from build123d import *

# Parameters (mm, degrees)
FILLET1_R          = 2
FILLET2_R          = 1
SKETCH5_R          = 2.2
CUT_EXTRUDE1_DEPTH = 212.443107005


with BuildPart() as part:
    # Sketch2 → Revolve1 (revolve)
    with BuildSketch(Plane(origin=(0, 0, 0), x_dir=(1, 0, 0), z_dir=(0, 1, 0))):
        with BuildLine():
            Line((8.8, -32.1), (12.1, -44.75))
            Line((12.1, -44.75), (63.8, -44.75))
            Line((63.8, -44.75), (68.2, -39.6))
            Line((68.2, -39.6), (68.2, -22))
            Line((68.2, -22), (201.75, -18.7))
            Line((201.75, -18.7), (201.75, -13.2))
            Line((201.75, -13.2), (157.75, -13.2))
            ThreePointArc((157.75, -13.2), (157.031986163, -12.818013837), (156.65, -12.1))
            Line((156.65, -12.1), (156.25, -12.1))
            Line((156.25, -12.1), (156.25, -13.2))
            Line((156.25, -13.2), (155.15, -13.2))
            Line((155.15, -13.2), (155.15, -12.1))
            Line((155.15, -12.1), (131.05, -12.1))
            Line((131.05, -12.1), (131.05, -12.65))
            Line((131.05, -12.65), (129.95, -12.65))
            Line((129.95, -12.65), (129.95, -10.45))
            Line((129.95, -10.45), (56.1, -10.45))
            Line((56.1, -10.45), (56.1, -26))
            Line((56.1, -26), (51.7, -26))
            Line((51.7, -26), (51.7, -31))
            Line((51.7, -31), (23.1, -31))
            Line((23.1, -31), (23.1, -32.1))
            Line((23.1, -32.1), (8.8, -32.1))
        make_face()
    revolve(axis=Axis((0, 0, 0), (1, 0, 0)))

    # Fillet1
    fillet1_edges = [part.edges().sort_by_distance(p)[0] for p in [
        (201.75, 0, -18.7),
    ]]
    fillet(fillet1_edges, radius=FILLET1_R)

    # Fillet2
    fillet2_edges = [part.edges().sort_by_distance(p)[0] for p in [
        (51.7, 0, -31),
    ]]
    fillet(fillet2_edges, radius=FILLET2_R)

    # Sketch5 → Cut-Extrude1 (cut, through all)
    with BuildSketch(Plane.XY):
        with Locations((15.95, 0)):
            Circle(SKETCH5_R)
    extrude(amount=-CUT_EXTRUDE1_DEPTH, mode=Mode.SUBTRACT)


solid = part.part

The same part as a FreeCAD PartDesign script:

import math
import FreeCAD as App
import Part
import Sketcher

V = App.Vector


def edges_at(feature, points):
    """Names of the edges that pass closest to the given points."""
    edges = feature.Shape.Edges
    near = lambda p: min(range(len(edges)), key=lambda i: edges[i].distToShape(Part.Vertex(*p))[0])
    return sorted({f"Edge{near(p) + 1}" for p in points})

doc = App.newDocument("Part")
body = doc.addObject("PartDesign::Body", "Body")

# Sketch on XZ plane
sketch1 = doc.addObject("Sketcher::SketchObject", "Sketch")
body.addObject(sketch1)
sketch1.AttachmentSupport = (doc.XZ_Plane, [""])
sketch1.MapMode = "FlatFace"
sketch1.addGeometry(Part.LineSegment(V(8.8, 32.1, 0), V(12.1, 44.75, 0)), False)
sketch1.addGeometry(Part.LineSegment(V(12.1, 44.75, 0), V(63.8, 44.75, 0)), False)
sketch1.addGeometry(Part.LineSegment(V(63.8, 44.75, 0), V(68.2, 39.6, 0)), False)
sketch1.addGeometry(Part.LineSegment(V(68.2, 39.6, 0), V(68.2, 22, 0)), False)
sketch1.addGeometry(Part.LineSegment(V(68.2, 22, 0), V(201.75, 18.7, 0)), False)
sketch1.addGeometry(Part.LineSegment(V(201.75, 18.7, 0), V(201.75, 13.2, 0)), False)
sketch1.addGeometry(Part.LineSegment(V(201.75, 13.2, 0), V(157.75, 13.2, 0)), False)
sketch1.addGeometry(Part.ArcOfCircle(Part.Circle(V(158.02, 11.83, 0), V(0, 0, 1), 1.39), math.radians(101), math.radians(169)), False)
sketch1.addGeometry(Part.LineSegment(V(156.65, 12.1, 0), V(156.25, 12.1, 0)), False)
sketch1.addGeometry(Part.LineSegment(V(156.25, 12.1, 0), V(156.25, 13.2, 0)), False)
sketch1.addGeometry(Part.LineSegment(V(156.25, 13.2, 0), V(155.15, 13.2, 0)), False)
sketch1.addGeometry(Part.LineSegment(V(155.15, 13.2, 0), V(155.15, 12.1, 0)), False)
sketch1.addGeometry(Part.LineSegment(V(155.15, 12.1, 0), V(131.05, 12.1, 0)), False)
sketch1.addGeometry(Part.LineSegment(V(131.05, 12.1, 0), V(131.05, 12.65, 0)), False)
sketch1.addGeometry(Part.LineSegment(V(131.05, 12.65, 0), V(129.95, 12.65, 0)), False)
sketch1.addGeometry(Part.LineSegment(V(129.95, 12.65, 0), V(129.95, 10.45, 0)), False)
sketch1.addGeometry(Part.LineSegment(V(129.95, 10.45, 0), V(56.1, 10.45, 0)), False)
sketch1.addGeometry(Part.LineSegment(V(56.1, 10.45, 0), V(56.1, 26, 0)), False)
sketch1.addGeometry(Part.LineSegment(V(56.1, 26, 0), V(51.7, 26, 0)), False)
sketch1.addGeometry(Part.LineSegment(V(51.7, 26, 0), V(51.7, 31, 0)), False)
sketch1.addGeometry(Part.LineSegment(V(51.7, 31, 0), V(23.1, 31, 0)), False)
sketch1.addGeometry(Part.LineSegment(V(23.1, 31, 0), V(23.1, 32.1, 0)), False)
sketch1.addGeometry(Part.LineSegment(V(23.1, 32.1, 0), V(8.8, 32.1, 0)), False)
sketch1.addConstraint(Sketcher.Constraint("Coincident", 0, 2, 1, 1))
sketch1.addConstraint(Sketcher.Constraint("Coincident", 1, 2, 2, 1))
sketch1.addConstraint(Sketcher.Constraint("Coincident", 2, 2, 3, 1))
sketch1.addConstraint(Sketcher.Constraint("Coincident", 3, 2, 4, 1))
sketch1.addConstraint(Sketcher.Constraint("Coincident", 4, 2, 5, 1))
sketch1.addConstraint(Sketcher.Constraint("Coincident", 5, 2, 6, 1))
sketch1.addConstraint(Sketcher.Constraint("Coincident", 6, 2, 7, 1))
sketch1.addConstraint(Sketcher.Constraint("Coincident", 7, 2, 8, 1))
sketch1.addConstraint(Sketcher.Constraint("Coincident", 8, 2, 9, 1))
sketch1.addConstraint(Sketcher.Constraint("Coincident", 9, 2, 10, 1))
sketch1.addConstraint(Sketcher.Constraint("Coincident", 10, 2, 11, 1))
sketch1.addConstraint(Sketcher.Constraint("Coincident", 11, 2, 12, 1))
sketch1.addConstraint(Sketcher.Constraint("Coincident", 12, 2, 13, 1))
sketch1.addConstraint(Sketcher.Constraint("Coincident", 13, 2, 14, 1))
sketch1.addConstraint(Sketcher.Constraint("Coincident", 14, 2, 15, 1))
sketch1.addConstraint(Sketcher.Constraint("Coincident", 15, 2, 16, 1))
sketch1.addConstraint(Sketcher.Constraint("Coincident", 16, 2, 17, 1))
sketch1.addConstraint(Sketcher.Constraint("Coincident", 17, 2, 18, 1))
sketch1.addConstraint(Sketcher.Constraint("Coincident", 18, 2, 19, 1))
sketch1.addConstraint(Sketcher.Constraint("Coincident", 19, 2, 20, 1))
sketch1.addConstraint(Sketcher.Constraint("Coincident", 20, 2, 21, 1))
sketch1.addConstraint(Sketcher.Constraint("Coincident", 21, 2, 22, 1))
sketch1.addConstraint(Sketcher.Constraint("Coincident", 22, 2, 0, 1))
sketch1.addConstraint(Sketcher.Constraint("Horizontal", 1))
sketch1.addConstraint(Sketcher.Constraint("Vertical", 3))
sketch1.addConstraint(Sketcher.Constraint("Vertical", 5))
sketch1.addConstraint(Sketcher.Constraint("Horizontal", 6))
sketch1.addConstraint(Sketcher.Constraint("Horizontal", 8))
sketch1.addConstraint(Sketcher.Constraint("Vertical", 9))
sketch1.addConstraint(Sketcher.Constraint("Horizontal", 10))
sketch1.addConstraint(Sketcher.Constraint("Vertical", 11))
sketch1.addConstraint(Sketcher.Constraint("Horizontal", 12))
sketch1.addConstraint(Sketcher.Constraint("Vertical", 13))
sketch1.addConstraint(Sketcher.Constraint("Horizontal", 14))
sketch1.addConstraint(Sketcher.Constraint("Vertical", 15))
sketch1.addConstraint(Sketcher.Constraint("Horizontal", 16))
sketch1.addConstraint(Sketcher.Constraint("Vertical", 17))
sketch1.addConstraint(Sketcher.Constraint("Horizontal", 18))
sketch1.addConstraint(Sketcher.Constraint("Vertical", 19))
sketch1.addConstraint(Sketcher.Constraint("Horizontal", 20))
sketch1.addConstraint(Sketcher.Constraint("Vertical", 21))
sketch1.addConstraint(Sketcher.Constraint("Horizontal", 22))
sketch1.addConstraint(Sketcher.Constraint("Horizontal", 6, 2, 9, 2))
sketch1.addConstraint(Sketcher.Constraint("Horizontal", 8, 2, 11, 2))
sketch1.addConstraint(Sketcher.Constraint("Equal", 10, 14))
sketch1.addConstraint(Sketcher.Constraint("Equal", 14, 9))
sketch1.addConstraint(Sketcher.Constraint("Equal", 11, 21))
sketch1.addConstraint(Sketcher.Constraint("DistanceX", 6, 2, 6, 1, 44.0))
sketch1.addConstraint(Sketcher.Constraint("DistanceY", 19, 1, 19, 2, 5.0))
sketch1.addConstraint(Sketcher.Constraint("DistanceX", 1, 1, 1, 2, 51.7))
sketch1.addConstraint(Sketcher.Constraint("DistanceX", 8, 2, 8, 1, 0.4))
sketch1.addConstraint(Sketcher.Constraint("DistanceX", 10, 2, 10, 1, 1.1))
sketch1.addConstraint(Sketcher.Constraint("DistanceX", 12, 2, 12, 1, 24.1))
sketch1.addConstraint(Sketcher.Constraint("DistanceX", 18, 2, 18, 1, 4.4))
sketch1.addConstraint(Sketcher.Constraint("DistanceX", 20, 2, 20, 1, 28.6))
sketch1.addConstraint(Sketcher.Constraint("DistanceX", 22, 2, 22, 1, 14.3))
sketch1.addConstraint(Sketcher.Constraint("DistanceY", 3, 2, 3, 1, 17.6))
sketch1.addConstraint(Sketcher.Constraint("DistanceY", 5, 2, 5, 1, 5.5))
sketch1.addConstraint(Sketcher.Constraint("DistanceY", 15, 2, 15, 1, 2.2))
sketch1.addConstraint(Sketcher.Constraint("DistanceY", -1, 1, 3, 2, 22.0))
sketch1.addConstraint(Sketcher.Constraint("DistanceY", -1, 1, 17, 2, 26.0))
sketch1.addConstraint(Sketcher.Constraint("DistanceX", 0, 2, 16, 2, 44.0))
sketch1.addConstraint(Sketcher.Constraint("DistanceX", 16, 2, 16, 1, 73.85))
sketch1.addConstraint(Sketcher.Constraint("DistanceY", 13, 1, 13, 2, 0.55))
sketch1.addConstraint(Sketcher.Constraint("DistanceY", 17, 1, 17, 2, 15.55))
sketch1.addConstraint(Sketcher.Constraint("DistanceX", -1, 1, 0, 2, 12.1))
sketch1.addConstraint(Sketcher.Constraint("DistanceX", -1, 1, 2, 2, 68.2))
sketch1.addConstraint(Sketcher.Constraint("DistanceX", 7, 2, 6, 2, 1.1))
sketch1.addConstraint(Sketcher.Constraint("DistanceY", 16, 2, 1, 2, 34.3))
sketch1.addConstraint(Sketcher.Constraint("Radius", 7, 1.391912))
revolution = doc.addObject("PartDesign::Revolution", "Revolution")
body.addObject(revolution)
revolution.Profile = sketch1
revolution.ReferenceAxis = (sketch1, ["H_Axis"])
revolution.Angle = 360
doc.recompute()

fillet = doc.addObject("PartDesign::Fillet", "Fillet")
body.addObject(fillet)
fillet.Base = (revolution, edges_at(revolution, [(201.75, 0, -18.7)]))
fillet.Radius = 2
doc.recompute()

fillet2 = doc.addObject("PartDesign::Fillet", "Fillet001")
body.addObject(fillet2)
fillet2.Base = (fillet, edges_at(fillet, [(51.7, 0, -31)]))
fillet2.Radius = 1

# Sketch on XY plane
sketch2 = doc.addObject("Sketcher::SketchObject", "Sketch001")
body.addObject(sketch2)
sketch2.AttachmentSupport = (doc.XY_Plane, [""])
sketch2.MapMode = "FlatFace"
sketch2.addGeometry(Part.Circle(V(15.9, 0, 0), V(0, 0, 1), 2.2), False)
sketch2.addConstraint(Sketcher.Constraint("PointOnObject", 0, 3, -1))
sketch2.addConstraint(Sketcher.Constraint("Diameter", 0, 4.4))
sketch2.addConstraint(Sketcher.Constraint("DistanceX", -1, 1, 0, 3, 15.95))
pocket1 = doc.addObject("PartDesign::Pocket", "Pocket")
body.addObject(pocket1)
pocket1.Profile = sketch2
pocket1.Type = "ThroughAll"

doc.recompute()
